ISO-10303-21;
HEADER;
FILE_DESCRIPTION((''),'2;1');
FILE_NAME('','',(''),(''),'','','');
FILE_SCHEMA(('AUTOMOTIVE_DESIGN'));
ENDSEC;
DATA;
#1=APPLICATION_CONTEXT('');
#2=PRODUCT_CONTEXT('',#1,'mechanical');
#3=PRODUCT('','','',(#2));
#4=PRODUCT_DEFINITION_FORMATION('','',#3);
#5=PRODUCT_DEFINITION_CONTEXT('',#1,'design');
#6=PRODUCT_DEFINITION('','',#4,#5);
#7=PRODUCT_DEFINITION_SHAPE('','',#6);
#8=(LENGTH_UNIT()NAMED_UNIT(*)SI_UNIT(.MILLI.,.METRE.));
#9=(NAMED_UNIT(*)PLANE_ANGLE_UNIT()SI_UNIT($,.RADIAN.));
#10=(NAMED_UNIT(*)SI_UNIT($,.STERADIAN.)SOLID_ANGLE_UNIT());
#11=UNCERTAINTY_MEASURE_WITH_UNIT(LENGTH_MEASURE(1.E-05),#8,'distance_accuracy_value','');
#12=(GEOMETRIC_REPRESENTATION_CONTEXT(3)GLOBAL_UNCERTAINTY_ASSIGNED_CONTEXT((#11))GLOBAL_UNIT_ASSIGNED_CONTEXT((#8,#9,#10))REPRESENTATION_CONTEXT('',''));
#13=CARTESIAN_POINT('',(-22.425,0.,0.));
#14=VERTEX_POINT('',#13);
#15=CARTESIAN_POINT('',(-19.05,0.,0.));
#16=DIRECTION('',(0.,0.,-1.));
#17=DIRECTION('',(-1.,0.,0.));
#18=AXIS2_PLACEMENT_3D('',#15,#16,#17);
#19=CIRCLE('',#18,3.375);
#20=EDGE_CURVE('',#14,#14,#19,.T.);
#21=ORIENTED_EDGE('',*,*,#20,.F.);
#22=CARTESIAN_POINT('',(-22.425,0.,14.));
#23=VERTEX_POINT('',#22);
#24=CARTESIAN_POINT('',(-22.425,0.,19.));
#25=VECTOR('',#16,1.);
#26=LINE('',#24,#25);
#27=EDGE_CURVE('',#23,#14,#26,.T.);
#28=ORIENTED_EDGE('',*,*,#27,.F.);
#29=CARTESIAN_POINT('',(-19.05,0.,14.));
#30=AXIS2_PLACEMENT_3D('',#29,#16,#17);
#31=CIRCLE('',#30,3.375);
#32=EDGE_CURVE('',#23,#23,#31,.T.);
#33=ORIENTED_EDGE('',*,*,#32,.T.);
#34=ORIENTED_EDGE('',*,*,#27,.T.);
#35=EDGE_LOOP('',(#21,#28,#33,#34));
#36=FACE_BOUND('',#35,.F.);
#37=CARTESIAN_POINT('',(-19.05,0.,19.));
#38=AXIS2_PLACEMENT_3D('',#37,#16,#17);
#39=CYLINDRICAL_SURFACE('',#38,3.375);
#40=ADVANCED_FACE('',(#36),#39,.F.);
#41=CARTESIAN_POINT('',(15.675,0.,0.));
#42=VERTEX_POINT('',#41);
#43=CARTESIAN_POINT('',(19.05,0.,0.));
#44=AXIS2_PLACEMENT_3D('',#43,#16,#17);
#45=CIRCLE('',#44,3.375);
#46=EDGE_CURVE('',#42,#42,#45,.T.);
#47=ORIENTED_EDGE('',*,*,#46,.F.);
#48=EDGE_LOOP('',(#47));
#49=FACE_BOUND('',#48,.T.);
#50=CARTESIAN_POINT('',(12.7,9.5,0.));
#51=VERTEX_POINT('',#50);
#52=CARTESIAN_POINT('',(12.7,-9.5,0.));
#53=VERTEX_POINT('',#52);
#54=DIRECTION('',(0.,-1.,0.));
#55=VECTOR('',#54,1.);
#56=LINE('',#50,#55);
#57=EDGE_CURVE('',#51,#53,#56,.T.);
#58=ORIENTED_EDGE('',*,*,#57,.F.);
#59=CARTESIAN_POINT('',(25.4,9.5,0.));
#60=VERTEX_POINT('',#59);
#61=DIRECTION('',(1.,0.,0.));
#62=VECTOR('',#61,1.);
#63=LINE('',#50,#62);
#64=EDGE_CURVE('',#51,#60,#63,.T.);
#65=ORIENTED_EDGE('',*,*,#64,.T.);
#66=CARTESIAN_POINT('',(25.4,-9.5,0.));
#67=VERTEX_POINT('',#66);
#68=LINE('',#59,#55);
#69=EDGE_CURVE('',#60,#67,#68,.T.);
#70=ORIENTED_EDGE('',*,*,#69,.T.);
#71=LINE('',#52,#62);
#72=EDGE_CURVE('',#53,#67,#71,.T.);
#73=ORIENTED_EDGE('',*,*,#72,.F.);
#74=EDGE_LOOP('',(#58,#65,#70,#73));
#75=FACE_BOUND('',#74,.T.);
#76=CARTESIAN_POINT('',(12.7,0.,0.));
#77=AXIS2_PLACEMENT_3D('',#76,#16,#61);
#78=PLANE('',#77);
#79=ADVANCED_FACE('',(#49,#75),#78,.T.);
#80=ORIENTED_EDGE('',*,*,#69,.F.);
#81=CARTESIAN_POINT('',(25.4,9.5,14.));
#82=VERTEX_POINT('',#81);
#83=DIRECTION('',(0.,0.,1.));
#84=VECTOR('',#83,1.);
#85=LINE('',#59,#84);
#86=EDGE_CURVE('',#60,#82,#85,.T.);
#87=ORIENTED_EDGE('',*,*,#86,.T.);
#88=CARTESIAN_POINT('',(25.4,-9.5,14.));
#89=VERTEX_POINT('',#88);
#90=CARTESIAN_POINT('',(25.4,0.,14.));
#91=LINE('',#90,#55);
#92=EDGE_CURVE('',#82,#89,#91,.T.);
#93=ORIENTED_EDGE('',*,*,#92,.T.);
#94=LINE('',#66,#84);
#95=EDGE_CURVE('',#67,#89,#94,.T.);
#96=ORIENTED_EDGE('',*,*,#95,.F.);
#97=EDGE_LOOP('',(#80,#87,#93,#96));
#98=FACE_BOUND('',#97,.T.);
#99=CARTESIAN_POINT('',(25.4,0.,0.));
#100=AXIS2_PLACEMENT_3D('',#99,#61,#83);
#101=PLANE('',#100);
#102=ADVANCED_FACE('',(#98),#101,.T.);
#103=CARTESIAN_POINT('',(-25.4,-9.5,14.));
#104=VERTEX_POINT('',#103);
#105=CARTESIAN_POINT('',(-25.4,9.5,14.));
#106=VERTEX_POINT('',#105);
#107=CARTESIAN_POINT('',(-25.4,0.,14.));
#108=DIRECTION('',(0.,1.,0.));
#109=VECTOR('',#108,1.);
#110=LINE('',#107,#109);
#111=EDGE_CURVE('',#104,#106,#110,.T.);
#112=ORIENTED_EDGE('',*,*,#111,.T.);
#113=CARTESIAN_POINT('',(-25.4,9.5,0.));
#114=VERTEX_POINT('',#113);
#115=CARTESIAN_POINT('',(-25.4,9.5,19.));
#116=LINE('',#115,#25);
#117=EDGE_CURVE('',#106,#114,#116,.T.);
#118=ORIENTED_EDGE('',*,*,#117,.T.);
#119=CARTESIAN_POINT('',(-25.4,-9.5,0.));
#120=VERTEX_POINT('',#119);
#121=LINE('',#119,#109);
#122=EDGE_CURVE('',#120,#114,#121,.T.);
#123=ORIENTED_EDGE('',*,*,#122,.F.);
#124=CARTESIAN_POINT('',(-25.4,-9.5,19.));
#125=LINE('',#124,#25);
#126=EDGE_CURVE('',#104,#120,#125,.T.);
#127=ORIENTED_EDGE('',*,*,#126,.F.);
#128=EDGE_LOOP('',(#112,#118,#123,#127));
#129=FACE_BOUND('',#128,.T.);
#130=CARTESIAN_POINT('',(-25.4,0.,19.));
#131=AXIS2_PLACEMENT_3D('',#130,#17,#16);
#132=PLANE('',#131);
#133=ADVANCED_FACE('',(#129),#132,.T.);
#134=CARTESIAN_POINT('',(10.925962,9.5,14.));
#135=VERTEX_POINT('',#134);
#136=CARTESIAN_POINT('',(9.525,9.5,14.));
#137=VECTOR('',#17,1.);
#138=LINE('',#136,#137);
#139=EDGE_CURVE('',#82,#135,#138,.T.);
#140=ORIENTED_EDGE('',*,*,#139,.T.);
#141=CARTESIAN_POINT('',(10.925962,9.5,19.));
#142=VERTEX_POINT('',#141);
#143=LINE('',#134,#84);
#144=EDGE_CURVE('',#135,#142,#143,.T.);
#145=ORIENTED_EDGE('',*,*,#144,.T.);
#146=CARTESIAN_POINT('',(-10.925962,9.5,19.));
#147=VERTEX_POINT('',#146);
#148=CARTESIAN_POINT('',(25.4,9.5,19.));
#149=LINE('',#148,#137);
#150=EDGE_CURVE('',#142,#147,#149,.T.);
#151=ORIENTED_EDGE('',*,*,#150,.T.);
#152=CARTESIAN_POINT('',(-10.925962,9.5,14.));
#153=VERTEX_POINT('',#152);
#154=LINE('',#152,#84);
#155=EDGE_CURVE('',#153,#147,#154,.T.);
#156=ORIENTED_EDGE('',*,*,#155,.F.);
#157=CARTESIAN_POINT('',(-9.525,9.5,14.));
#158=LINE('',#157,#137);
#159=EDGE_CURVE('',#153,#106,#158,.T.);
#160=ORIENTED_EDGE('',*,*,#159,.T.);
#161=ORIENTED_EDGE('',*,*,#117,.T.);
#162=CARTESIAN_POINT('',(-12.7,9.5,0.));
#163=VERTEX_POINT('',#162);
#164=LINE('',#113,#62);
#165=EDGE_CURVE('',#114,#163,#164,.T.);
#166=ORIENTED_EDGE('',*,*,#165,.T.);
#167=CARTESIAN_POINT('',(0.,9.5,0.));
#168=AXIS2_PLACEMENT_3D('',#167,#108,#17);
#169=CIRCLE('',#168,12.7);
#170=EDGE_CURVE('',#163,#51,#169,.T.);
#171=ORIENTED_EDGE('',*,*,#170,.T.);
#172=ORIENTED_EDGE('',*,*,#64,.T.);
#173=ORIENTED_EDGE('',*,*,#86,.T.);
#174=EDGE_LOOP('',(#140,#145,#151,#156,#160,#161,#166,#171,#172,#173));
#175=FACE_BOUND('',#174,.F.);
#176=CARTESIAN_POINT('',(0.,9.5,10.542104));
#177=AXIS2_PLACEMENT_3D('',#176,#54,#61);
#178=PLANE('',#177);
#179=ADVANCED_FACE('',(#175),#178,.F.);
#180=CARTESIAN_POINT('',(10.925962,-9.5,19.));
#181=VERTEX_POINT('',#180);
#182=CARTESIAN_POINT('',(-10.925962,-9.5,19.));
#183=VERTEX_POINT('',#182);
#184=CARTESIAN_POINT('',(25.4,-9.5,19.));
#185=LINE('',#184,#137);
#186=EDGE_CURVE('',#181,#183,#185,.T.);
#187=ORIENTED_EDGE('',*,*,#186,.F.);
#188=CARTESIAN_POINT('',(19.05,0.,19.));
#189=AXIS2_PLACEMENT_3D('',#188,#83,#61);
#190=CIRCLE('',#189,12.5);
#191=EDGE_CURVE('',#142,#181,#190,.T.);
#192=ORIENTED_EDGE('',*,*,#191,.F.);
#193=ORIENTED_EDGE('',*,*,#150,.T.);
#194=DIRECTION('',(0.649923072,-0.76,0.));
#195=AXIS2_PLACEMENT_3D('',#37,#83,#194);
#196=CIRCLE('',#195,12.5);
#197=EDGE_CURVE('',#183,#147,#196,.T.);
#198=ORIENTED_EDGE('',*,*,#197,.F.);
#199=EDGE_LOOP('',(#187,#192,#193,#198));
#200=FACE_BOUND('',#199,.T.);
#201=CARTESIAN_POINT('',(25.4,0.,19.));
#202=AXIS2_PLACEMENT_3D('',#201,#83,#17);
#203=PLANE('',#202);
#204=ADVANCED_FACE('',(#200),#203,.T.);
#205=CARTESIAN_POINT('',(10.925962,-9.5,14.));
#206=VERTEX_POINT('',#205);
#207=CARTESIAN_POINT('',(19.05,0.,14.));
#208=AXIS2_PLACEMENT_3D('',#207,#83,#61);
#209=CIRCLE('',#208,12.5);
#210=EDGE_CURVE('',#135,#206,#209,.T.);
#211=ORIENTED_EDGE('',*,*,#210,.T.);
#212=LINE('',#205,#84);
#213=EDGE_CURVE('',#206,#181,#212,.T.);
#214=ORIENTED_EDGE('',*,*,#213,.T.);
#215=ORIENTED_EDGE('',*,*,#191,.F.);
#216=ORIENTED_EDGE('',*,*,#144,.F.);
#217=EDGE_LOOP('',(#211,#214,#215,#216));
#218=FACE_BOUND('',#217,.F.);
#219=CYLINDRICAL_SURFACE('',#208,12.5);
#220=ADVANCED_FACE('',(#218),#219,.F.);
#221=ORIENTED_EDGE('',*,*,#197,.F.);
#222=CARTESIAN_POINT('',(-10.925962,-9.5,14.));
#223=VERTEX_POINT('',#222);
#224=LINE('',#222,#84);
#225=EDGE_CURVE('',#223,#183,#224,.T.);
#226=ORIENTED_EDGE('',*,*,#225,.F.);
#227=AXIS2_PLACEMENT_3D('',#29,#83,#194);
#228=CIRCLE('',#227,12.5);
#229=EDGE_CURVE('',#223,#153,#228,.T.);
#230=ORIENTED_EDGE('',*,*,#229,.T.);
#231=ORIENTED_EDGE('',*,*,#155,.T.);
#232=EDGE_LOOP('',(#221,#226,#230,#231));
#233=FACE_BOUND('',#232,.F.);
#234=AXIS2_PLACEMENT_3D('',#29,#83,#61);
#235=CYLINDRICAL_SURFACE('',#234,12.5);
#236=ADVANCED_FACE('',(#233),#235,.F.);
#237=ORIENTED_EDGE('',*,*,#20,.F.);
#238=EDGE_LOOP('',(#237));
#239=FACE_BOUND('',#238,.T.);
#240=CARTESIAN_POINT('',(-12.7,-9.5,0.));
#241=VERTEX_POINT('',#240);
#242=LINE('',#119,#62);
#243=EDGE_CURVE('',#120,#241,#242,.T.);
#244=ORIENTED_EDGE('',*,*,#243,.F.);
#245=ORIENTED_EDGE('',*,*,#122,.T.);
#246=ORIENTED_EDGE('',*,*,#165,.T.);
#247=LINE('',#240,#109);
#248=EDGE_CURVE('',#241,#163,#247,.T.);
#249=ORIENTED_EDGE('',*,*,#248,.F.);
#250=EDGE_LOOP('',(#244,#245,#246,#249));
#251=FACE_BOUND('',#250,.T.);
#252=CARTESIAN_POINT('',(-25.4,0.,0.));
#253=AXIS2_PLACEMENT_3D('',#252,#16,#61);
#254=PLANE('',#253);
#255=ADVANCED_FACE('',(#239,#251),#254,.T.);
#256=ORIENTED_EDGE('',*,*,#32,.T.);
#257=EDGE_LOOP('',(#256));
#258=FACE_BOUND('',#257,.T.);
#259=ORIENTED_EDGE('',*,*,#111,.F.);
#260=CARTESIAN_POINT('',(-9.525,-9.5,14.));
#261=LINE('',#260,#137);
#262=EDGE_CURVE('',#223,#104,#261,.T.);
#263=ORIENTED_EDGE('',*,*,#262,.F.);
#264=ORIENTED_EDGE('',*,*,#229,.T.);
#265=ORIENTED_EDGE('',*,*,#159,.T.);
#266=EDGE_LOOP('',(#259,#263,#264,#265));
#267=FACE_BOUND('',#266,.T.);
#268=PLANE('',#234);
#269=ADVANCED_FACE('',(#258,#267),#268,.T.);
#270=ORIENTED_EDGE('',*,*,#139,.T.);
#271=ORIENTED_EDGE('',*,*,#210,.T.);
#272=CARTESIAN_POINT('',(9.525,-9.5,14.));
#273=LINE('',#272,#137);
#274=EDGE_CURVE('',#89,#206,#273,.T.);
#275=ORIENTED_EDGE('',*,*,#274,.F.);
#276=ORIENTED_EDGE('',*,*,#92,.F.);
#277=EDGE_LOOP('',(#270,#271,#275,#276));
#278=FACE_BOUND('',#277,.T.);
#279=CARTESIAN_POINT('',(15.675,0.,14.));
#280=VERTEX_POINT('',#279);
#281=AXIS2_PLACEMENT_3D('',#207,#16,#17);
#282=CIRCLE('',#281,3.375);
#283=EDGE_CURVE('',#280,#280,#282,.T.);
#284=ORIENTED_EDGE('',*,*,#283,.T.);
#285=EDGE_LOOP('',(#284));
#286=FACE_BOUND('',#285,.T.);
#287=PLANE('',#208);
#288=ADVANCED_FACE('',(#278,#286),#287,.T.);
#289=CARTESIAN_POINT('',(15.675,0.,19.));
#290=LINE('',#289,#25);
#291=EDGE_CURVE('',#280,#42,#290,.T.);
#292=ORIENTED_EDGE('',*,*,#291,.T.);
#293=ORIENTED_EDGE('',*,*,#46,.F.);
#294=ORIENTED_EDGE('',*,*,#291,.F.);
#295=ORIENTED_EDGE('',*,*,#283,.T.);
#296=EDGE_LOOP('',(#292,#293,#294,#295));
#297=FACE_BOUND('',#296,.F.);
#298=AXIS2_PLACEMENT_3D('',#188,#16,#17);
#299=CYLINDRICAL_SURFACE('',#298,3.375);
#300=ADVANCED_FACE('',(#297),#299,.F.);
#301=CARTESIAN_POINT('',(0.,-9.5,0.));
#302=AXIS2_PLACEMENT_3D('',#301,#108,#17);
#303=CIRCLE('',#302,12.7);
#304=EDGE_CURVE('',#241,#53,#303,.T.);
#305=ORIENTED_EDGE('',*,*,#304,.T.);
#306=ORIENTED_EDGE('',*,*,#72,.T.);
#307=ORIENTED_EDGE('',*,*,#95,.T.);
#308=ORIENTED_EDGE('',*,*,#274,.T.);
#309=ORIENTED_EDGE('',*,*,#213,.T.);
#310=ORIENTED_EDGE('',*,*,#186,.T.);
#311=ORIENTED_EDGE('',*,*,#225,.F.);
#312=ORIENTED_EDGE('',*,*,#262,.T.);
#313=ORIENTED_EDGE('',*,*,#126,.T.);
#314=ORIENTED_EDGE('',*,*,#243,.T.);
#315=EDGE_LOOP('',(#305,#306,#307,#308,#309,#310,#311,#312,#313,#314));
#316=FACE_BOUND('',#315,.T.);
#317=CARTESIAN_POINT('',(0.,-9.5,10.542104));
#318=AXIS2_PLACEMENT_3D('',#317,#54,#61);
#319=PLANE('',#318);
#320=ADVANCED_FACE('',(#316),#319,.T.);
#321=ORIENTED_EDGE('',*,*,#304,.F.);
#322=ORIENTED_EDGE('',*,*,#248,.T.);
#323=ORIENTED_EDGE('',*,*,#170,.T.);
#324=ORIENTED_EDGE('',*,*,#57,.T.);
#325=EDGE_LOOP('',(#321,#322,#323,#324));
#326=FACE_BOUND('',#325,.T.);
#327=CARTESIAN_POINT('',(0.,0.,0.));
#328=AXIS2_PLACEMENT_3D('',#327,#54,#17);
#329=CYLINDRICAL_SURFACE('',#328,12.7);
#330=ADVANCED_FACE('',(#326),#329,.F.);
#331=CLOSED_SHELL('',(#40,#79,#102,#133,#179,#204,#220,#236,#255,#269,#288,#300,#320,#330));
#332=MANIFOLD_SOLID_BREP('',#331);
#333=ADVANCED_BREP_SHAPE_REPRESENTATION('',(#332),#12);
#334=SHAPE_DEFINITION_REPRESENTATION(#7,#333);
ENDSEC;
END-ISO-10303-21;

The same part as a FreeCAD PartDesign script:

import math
import FreeCAD as App
import Part
import Sketcher
Q = App.Units.Quantity

doc = App.newDocument("Part")
body = doc.addObject("PartDesign::Body", "Body")

sketch1 = doc.addObject("Sketcher::SketchObject", "Sketch")
body.addObject(sketch1)
sketch1.AttachmentSupport = (doc.XZ_Plane, [""])
sketch1.MapMode = "FlatFace"
sketch1.addGeometry(Part.ArcOfCircle(Part.Circle(App.Vector(0, 0, 0), App.Vector(0, 0, 1), 12.7), math.radians(0), math.radians(180)), False)
sketch1.addGeometry(Part.LineSegment(App.Vector(12.7, 0, 0), App.Vector(25.4, 0, 0)), False)
sketch1.addGeometry(Part.LineSegment(App.Vector(25.4, 0, 0), App.Vector(25.4, 19, 0)), False)
sketch1.addGeometry(Part.LineSegment(App.Vector(25.4, 19, 0), App.Vector(-25.4, 19, 0)), False)
sketch1.addGeometry(Part.LineSegment(App.Vector(-25.4, 19, 0), App.Vector(-25.4, 0, 0)), False)
sketch1.addGeometry(Part.LineSegment(App.Vector(-25.4, 0, 0), App.Vector(-12.7, 0, 0)), False)
sketch1.addConstraint(Sketcher.Constraint("Coincident", 0, 1, 1, 1))
sketch1.addConstraint(Sketcher.Constraint("Coincident", 1, 2, 2, 1))
sketch1.addConstraint(Sketcher.Constraint("Coincident", 2, 2, 3, 1))
sketch1.addConstraint(Sketcher.Constraint("Coincident", 3, 2, 4, 1))
sketch1.addConstraint(Sketcher.Constraint("Coincident", 4, 2, 5, 1))
sketch1.addConstraint(Sketcher.Constraint("Coincident", 5, 2, 0, 2))
sketch1.addConstraint(Sketcher.Constraint("Horizontal", 1))
sketch1.addConstraint(Sketcher.Constraint("Vertical", 2))
sketch1.addConstraint(Sketcher.Constraint("Horizontal", 3))
sketch1.addConstraint(Sketcher.Constraint("Vertical", 4))
sketch1.addConstraint(Sketcher.Constraint("Horizontal", 5))
sketch1.addConstraint(Sketcher.Constraint("Coincident", 0, 3, -1, 1))
sketch1.addConstraint(Sketcher.Constraint("Symmetric", 1, 2, 4, 2, -1, 1))
sketch1.addConstraint(Sketcher.Constraint("PointOnObject", 0, 1, -1))
sketch1.addConstraint(Sketcher.Constraint("Radius", 0, Q("0.5 in")))
sketch1.addConstraint(Sketcher.Constraint("DistanceX", 3, 2, 3, 1, Q("2 in")))
sketch1.addConstraint(Sketcher.Constraint("DistanceY", 2, 1, 2, 2, 19.0))
pad1 = doc.addObject("PartDesign::Pad", "Pad")
body.addObject(pad1)
pad1.Profile = sketch1
pad1.Length = 19
pad1.Midplane = True

sketch2 = doc.addObject("Sketcher::SketchObject", "Sketch001")
body.addObject(sketch2)
sketch2.AttachmentSupport = (doc.XY_Plane, [""])
sketch2.MapMode = "FlatFace"
sketch2.AttachmentOffset = App.Placement(App.Vector(0, 0, 19), App.Rotation())
sketch2.addGeometry(Part.Circle(App.Vector(19.05, 0, 0), App.Vector(0, 0, 1), 3.375), False)
sketch2.addGeometry(Part.Circle(App.Vector(-19.05, 0, 0), App.Vector(0, 0, 1), 3.375), False)
sketch2.addConstraint(Sketcher.Constraint("Equal", 0, 1))
sketch2.addConstraint(Sketcher.Constraint("Symmetric", 0, 3, 1, 3, -1, 1))
sketch2.addConstraint(Sketcher.Constraint("PointOnObject", 0, 3, -1))
sketch2.addConstraint(Sketcher.Constraint("DistanceX", 1, 3, 0, 3, Q("1.5 in")))
sketch2.addConstraint(Sketcher.Constraint("Diameter", 0, 6.75))
doc.recompute()
hole = doc.addObject("PartDesign::Hole", "Hole")
body.addObject(hole)
hole.Profile = sketch2
hole.ThreadType = "None"
hole.Diameter = 6.75
hole.DepthType = "ThroughAll"
hole.HoleCutType = "Counterbore"
hole.HoleCutDiameter = 25
hole.HoleCutDepth = 5

doc.recompute()
